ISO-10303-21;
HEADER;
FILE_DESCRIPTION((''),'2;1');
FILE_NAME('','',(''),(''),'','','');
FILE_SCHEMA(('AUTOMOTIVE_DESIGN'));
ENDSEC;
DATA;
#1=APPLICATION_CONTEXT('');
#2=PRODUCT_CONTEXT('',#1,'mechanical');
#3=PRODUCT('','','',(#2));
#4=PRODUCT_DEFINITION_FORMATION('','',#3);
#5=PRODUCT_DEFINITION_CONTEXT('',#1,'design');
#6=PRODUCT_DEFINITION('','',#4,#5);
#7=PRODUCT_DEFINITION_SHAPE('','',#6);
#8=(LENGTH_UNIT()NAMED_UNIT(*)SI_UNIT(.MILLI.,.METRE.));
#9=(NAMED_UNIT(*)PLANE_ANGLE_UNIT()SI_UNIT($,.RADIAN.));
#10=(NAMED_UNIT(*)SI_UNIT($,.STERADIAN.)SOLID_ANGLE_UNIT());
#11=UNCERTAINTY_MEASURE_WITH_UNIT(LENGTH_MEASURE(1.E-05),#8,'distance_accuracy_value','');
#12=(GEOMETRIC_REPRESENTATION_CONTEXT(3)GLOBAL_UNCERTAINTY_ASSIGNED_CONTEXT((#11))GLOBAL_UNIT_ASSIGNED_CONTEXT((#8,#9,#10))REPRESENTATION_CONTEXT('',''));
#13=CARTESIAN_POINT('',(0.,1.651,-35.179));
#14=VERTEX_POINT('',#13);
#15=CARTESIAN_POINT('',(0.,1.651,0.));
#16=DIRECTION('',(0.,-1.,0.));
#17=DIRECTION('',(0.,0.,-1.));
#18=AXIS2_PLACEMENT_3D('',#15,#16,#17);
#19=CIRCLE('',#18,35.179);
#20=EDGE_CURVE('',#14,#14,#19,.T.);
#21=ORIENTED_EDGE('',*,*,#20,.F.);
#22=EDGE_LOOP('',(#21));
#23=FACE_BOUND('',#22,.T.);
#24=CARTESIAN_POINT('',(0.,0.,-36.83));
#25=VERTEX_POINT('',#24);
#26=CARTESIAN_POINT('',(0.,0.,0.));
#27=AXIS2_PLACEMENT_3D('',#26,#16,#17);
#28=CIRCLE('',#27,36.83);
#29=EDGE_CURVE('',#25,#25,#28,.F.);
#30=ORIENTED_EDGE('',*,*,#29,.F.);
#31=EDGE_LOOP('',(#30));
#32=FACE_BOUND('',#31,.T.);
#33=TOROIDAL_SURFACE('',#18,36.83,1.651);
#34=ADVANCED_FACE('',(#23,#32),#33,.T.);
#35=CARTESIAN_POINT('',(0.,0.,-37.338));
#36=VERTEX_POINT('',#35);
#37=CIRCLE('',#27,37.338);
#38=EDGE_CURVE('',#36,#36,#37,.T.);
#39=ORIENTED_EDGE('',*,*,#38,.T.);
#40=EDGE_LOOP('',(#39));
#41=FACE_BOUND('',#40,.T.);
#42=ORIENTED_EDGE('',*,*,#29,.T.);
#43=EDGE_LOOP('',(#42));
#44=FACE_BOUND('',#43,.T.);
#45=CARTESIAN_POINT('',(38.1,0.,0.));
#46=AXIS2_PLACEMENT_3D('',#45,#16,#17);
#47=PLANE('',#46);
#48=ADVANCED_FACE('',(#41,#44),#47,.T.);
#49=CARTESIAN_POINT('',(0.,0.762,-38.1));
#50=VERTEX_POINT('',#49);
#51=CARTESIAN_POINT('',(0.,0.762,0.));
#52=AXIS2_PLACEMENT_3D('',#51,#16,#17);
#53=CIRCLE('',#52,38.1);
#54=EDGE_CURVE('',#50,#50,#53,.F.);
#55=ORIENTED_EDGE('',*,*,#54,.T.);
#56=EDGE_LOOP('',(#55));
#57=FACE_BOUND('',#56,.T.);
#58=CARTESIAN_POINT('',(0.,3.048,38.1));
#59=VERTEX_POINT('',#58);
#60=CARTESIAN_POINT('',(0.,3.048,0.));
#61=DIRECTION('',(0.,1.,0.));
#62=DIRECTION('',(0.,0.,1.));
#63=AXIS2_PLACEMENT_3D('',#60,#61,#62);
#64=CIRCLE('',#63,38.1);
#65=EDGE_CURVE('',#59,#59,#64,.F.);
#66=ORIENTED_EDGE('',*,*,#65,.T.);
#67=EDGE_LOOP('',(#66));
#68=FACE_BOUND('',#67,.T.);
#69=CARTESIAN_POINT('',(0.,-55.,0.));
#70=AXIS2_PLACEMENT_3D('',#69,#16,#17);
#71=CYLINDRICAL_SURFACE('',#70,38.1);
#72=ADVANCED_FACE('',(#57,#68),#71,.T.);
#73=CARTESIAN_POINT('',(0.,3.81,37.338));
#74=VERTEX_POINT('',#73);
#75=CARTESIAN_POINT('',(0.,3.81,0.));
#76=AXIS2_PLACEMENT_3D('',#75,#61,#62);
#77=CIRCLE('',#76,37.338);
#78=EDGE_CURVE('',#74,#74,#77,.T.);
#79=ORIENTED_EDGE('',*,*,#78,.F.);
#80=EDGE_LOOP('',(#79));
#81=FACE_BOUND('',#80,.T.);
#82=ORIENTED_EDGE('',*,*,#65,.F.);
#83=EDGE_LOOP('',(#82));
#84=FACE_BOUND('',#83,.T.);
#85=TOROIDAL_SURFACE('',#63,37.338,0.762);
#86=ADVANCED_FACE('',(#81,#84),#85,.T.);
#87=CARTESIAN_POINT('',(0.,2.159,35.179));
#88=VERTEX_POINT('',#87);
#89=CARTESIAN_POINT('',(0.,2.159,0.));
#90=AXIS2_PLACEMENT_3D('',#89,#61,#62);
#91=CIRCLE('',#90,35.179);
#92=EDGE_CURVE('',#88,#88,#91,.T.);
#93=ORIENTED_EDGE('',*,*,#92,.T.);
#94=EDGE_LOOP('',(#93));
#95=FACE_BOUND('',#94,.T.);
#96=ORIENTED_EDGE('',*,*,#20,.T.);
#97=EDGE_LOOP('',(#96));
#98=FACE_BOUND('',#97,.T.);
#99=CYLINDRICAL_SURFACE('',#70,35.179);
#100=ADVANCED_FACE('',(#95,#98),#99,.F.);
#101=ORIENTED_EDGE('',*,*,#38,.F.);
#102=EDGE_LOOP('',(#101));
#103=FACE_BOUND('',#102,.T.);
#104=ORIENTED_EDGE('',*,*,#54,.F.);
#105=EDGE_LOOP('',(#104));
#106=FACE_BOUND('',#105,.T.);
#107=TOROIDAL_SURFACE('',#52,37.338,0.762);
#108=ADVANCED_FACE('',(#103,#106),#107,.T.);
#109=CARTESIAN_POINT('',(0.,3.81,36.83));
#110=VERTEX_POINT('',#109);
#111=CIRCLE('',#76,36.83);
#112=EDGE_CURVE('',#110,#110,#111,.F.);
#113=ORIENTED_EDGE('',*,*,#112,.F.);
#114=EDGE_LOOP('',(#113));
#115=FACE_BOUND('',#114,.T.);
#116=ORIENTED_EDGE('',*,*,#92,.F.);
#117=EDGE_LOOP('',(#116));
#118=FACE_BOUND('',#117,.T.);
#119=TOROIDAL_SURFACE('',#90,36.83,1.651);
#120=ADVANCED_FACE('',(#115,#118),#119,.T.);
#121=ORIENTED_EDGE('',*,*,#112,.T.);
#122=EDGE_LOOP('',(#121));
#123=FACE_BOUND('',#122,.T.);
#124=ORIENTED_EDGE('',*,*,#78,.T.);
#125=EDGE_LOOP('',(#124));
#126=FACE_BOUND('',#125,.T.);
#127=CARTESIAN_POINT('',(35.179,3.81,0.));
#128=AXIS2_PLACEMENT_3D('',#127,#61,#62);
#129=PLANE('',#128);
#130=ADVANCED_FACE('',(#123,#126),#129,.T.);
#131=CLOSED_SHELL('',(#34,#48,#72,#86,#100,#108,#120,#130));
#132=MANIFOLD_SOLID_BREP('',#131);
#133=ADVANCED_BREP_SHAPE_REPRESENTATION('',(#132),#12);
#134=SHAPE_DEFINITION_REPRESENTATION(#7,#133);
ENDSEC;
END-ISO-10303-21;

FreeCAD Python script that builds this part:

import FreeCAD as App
import Part
import Sketcher
Q = App.Units.Quantity


def edges_at(feature, points):
    """Names of the edges that pass closest to the given points."""
    edges = feature.Shape.Edges
    near = lambda p: min(range(len(edges)), key=lambda i: edges[i].distToShape(Part.Vertex(*p))[0])
    return sorted({f"Edge{near(p) + 1}" for p in points})


def add_polygon(sketch, points):
    """Adds a closed chain of lines whose ends are joined by coincident constraints."""
    first, n = sketch.GeometryCount, len(points)
    for a, b in zip(points, points[1:] + points[:1]):
        sketch.addGeometry(Part.LineSegment(App.Vector(*a, 0), App.Vector(*b, 0)), False)
    for i in range(n):
        sketch.addConstraint(Sketcher.Constraint("Coincident", first + i, 2, first + (i + 1) % n, 1))

doc = App.newDocument("Part")
body = doc.addObject("PartDesign::Body", "Body")

# Sketch on XY plane
sketch1 = body.newObject("Sketcher::SketchObject", "Sketch")
sketch1.AttachmentSupport = (doc.getObject("XY_Plane"), [""])
sketch1.MapMode = "FlatFace"
add_polygon(sketch1, [(35.2, 3.8), (35.2, 0), (38.1, 0), (38.1, 3.8)])  # lines 0-3
sketch1.addConstraint(Sketcher.Constraint("Vertical", 0))
sketch1.addConstraint(Sketcher.Constraint("Horizontal", 1))
sketch1.addConstraint(Sketcher.Constraint("Vertical", 2))
sketch1.addConstraint(Sketcher.Constraint("Horizontal", 3))
sketch1.addConstraint(Sketcher.Constraint("PointOnObject", 0, 2, -1))
sketch1.addConstraint(Sketcher.Constraint("DistanceY", 0, 2, 0, 1, Q("0.15 in")))
sketch1.addConstraint(Sketcher.Constraint("DistanceX", -1, 1, 1, 2, Q("1.5 in")))
sketch1.addConstraint(Sketcher.Constraint("DistanceX", 1, 1, 1, 2, Q("0.115 in")))
revolution = body.newObject("PartDesign::Revolution", "Revolution")
revolution.Profile = sketch1
revolution.ReferenceAxis = (sketch1, ["V_Axis"])
revolution.Angle = 360
doc.recompute()

fillet = body.newObject("PartDesign::Fillet", "Fillet")
fillet.Base = (revolution, edges_at(revolution, [(-35.179, 3.81, 0), (-35.179, 0, 0)]))
fillet.Radius = Q("0.065 in")
doc.recompute()

fillet2 = body.newObject("PartDesign::Fillet", "Fillet001")
fillet2.Base = (fillet, edges_at(fillet, [(-38.1, 3.81, 0), (-38.1, 0, 0)]))
fillet2.Radius = Q("0.03 in")

doc.recompute()
